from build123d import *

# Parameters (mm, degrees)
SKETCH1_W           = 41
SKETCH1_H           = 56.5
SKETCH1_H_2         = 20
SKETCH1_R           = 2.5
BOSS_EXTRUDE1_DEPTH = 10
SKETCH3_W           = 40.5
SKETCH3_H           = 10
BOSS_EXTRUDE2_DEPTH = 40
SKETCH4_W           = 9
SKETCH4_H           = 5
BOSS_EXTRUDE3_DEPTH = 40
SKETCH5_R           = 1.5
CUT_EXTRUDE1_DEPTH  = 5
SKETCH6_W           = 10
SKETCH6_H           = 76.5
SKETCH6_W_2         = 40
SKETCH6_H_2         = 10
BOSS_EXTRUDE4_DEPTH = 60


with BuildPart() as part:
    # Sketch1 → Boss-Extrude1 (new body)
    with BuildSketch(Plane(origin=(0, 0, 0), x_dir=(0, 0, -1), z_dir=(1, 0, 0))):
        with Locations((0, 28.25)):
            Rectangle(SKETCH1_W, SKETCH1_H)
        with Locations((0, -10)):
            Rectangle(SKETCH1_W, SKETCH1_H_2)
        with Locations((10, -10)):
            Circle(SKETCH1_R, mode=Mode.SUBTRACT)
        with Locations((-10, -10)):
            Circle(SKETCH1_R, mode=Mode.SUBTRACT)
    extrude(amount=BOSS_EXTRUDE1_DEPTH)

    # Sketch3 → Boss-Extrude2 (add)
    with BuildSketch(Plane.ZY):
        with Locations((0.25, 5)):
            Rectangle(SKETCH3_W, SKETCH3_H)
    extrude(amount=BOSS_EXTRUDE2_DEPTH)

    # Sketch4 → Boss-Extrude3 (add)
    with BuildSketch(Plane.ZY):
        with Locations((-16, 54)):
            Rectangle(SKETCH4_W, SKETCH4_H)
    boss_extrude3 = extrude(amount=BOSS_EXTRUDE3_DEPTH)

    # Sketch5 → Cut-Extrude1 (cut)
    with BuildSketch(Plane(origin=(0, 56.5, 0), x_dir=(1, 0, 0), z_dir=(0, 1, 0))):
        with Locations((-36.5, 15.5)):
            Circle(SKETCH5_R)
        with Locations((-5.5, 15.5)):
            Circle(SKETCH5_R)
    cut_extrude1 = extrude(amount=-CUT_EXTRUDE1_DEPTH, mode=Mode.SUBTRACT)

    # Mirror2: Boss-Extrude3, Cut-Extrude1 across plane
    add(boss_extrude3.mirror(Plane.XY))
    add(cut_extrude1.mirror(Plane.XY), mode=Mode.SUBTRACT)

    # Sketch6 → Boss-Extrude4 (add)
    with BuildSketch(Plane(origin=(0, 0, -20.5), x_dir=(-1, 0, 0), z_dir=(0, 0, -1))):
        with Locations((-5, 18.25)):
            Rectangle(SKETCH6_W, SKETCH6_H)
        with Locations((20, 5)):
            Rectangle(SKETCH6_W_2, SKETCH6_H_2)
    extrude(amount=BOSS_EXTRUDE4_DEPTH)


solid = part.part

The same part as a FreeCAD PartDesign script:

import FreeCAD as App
import Part
import Sketcher

V = App.Vector
Q = App.Units.Quantity

doc = App.newDocument("Part")
body = doc.addObject("PartDesign::Body", "Body")

sketch1 = body.newObject("Sketcher::SketchObject", "Sketch")
sketch1.AttachmentSupport = (doc.getObject("YZ_Plane"), [""])
sketch1.MapMode = "FlatFace"
sketch1.addGeometry([
    Part.LineSegment(V(56.5, 20.5, 0), V(-20, 20.5, 0)),
    Part.LineSegment(V(-20, 20.5, 0), V(-20, -20.5, 0)),
    Part.LineSegment(V(-20, -20.5, 0), V(56.5, -20.5, 0)),
    Part.LineSegment(V(56.5, -20.5, 0), V(56.5, 20.5, 0)),
    Part.Circle(V(-10, 10, 0), V(0, 0, 1), 2.5),
    Part.Circle(V(-10, -10, 0), V(0, 0, 1), 2.5),
], False)
sketch1.addConstraint([
    Sketcher.Constraint("Coincident", 0, 2, 1, 1),
    Sketcher.Constraint("Coincident", 1, 2, 2, 1),
    Sketcher.Constraint("Coincident", 2, 2, 3, 1),
    Sketcher.Constraint("Coincident", 3, 2, 0, 1),
    Sketcher.Constraint("Horizontal", 0),
    Sketcher.Constraint("Vertical", 1),
    Sketcher.Constraint("Horizontal", 2),
    Sketcher.Constraint("Vertical", 3),
    Sketcher.Constraint("Equal", 4, 5),
    Sketcher.Constraint("Symmetric", 4, 3, 5, 3, -1),
    Sketcher.Constraint("Diameter", 4, Q("5 mm")),
    Sketcher.Constraint("DistanceY", 1, 2, 1, 1, Q("41 mm")),
    Sketcher.Constraint("DistanceX", 0, 2, 0, 1, Q("76.5 mm")),
    Sketcher.Constraint("DistanceX", 4, 3, -1, 1, Q("10 mm")),
    Sketcher.Constraint("DistanceY", -1, 1, 4, 3, Q("10 mm")),
    Sketcher.Constraint("DistanceX", 0, 2, -1, 1, Q("20 mm")),
    Sketcher.Constraint("DistanceY", -1, 1, 0, 2, Q("20.5 mm")),
])
pad1 = body.newObject("PartDesign::Pad", "Pad")
pad1.Profile = sketch1
pad1.Length = 10

sketch2 = body.newObject("Sketcher::SketchObject", "Sketch001")
sketch2.AttachmentSupport = (doc.getObject("YZ_Plane"), [""])
sketch2.MapMode = "FlatFace"
sketch2.addGeometry([
    Part.LineSegment(V(10, -20, 0), V(0, -20, 0)),
    Part.LineSegment(V(0, -20, 0), V(0, 20.5, 0)),
    Part.LineSegment(V(0, 20.5, 0), V(10, 20.5, 0)),
    Part.LineSegment(V(10, 20.5, 0), V(10, -20, 0)),
], False)
sketch2.addConstraint([
    Sketcher.Constraint("Coincident", 0, 2, 1, 1),
    Sketcher.Constraint("Coincident", 1, 2, 2, 1),
    Sketcher.Constraint("Coincident", 2, 2, 3, 1),
    Sketcher.Constraint("Coincident", 3, 2, 0, 1),
    Sketcher.Constraint("Horizontal", 0),
    Sketcher.Constraint("Vertical", 1),
    Sketcher.Constraint("Horizontal", 2),
    Sketcher.Constraint("Vertical", 3),
    Sketcher.Constraint("PointOnObject", 0, 2, -2),
    Sketcher.Constraint("DistanceX", 0, 2, 0, 1, Q("10 mm")),
    Sketcher.Constraint("DistanceY", 1, 1, 1, 2, Q("40.5 mm")),
    Sketcher.Constraint("DistanceY", 0, 2, -1, 1, Q("20 mm")),
])
pad2 = body.newObject("PartDesign::Pad", "Pad001")
pad2.Profile = sketch2
pad2.Length = 40
pad2.Reversed = True

sketch3 = body.newObject("Sketcher::SketchObject", "Sketch002")
sketch3.AttachmentSupport = (doc.getObject("YZ_Plane"), [""])
sketch3.MapMode = "FlatFace"
sketch3.addGeometry([
    Part.LineSegment(V(56.5, -20.5, 0), V(51.5, -20.5, 0)),
    Part.LineSegment(V(51.5, -20.5, 0), V(51.5, -11.5, 0)),
    Part.LineSegment(V(51.5, -11.5, 0), V(56.5, -11.5, 0)),
    Part.LineSegment(V(56.5, -11.5, 0), V(56.5, -20.5, 0)),
], False)
sketch3.addConstraint([
    Sketcher.Constraint("Coincident", 0, 2, 1, 1),
    Sketcher.Constraint("Coincident", 1, 2, 2, 1),
    Sketcher.Constraint("Coincident", 2, 2, 3, 1),
    Sketcher.Constraint("Coincident", 3, 2, 0, 1),
    Sketcher.Constraint("Horizontal", 0),
    Sketcher.Constraint("Vertical", 1),
    Sketcher.Constraint("Horizontal", 2),
    Sketcher.Constraint("Vertical", 3),
    Sketcher.Constraint("DistanceX", 0, 2, 0, 1, Q("5 mm")),
    Sketcher.Constraint("DistanceY", 1, 1, 1, 2, Q("9 mm")),
    Sketcher.Constraint("DistanceX", -1, 1, 0, 2, Q("51.5 mm")),
    Sketcher.Constraint("DistanceY", 0, 2, -1, 1, Q("20.5 mm")),
])
pad3 = body.newObject("PartDesign::Pad", "Pad002")
pad3.Profile = sketch3
pad3.Length = 40
pad3.Reversed = True

sketch4 = body.newObject("Sketcher::SketchObject", "Sketch003")
sketch4.AttachmentSupport = (doc.getObject("XZ_Plane"), [""])
sketch4.MapMode = "FlatFace"
sketch4.AttachmentOffset = App.Placement(V(0, 0, -56.5), App.Rotation())
sketch4.addGeometry([
    Part.Circle(V(-36.5, -15.5, 0), V(0, 0, 1), 1.5),
    Part.Circle(V(-5.5, -15.5, 0), V(0, 0, 1), 1.5),
], False)
sketch4.addConstraint([
    Sketcher.Constraint("Equal", 0, 1),
    Sketcher.Constraint("Horizontal", 0, 3, 1, 3),
    Sketcher.Constraint("Diameter", 0, Q("3 mm")),
    Sketcher.Constraint("DistanceX", 0, 3, 1, 3, Q("31 mm")),
    Sketcher.Constraint("DistanceX", 0, 3, -1, 1, Q("36.5 mm")),
    Sketcher.Constraint("DistanceY", 0, 3, -1, 1, Q("15.5 mm")),
])
pocket1 = body.newObject("PartDesign::Pocket", "Pocket")
pocket1.Profile = sketch4
pocket1.Length = 5
pocket1.Reversed = True
doc.recompute()

mirrored = body.newObject("PartDesign::Mirrored", "Mirrored")
mirrored.Originals = [pad3, pocket1]
mirrored.MirrorPlane = (doc.getObject("XY_Plane"), [""])
body.Tip = mirrored

sketch5 = body.newObject("Sketcher::SketchObject", "Sketch004")
sketch5.AttachmentSupport = (doc.getObject("XY_Plane"), [""])
sketch5.MapMode = "FlatFace"
sketch5.AttachmentOffset = App.Placement(V(0, 0, -20.5), App.Rotation())
sketch5.addGeometry([
    Part.LineSegment(V(10, 56.5, 0), V(10, -20, 0)),
    Part.LineSegment(V(10, -20, 0), V(0, -20, 0)),
    Part.LineSegment(V(0, -20, 0), V(0, 0, 0)),
    Part.LineSegment(V(0, 0, 0), V(-40, 0, 0)),
    Part.LineSegment(V(-40, 0, 0), V(-40, 10, 0)),
    Part.LineSegment(V(-40, 10, 0), V(0, 10, 0)),
    Part.LineSegment(V(0, 10, 0), V(0, 56.5, 0)),
    Part.LineSegment(V(0, 56.5, 0), V(10, 56.5, 0)),
], False)
sketch5.addConstraint([
    Sketcher.Constraint("Coincident", 0, 2, 1, 1),
    Sketcher.Constraint("Coincident", 1, 2, 2, 1),
    Sketcher.Constraint("Coincident", 2, 2, 3, 1),
    Sketcher.Constraint("Coincident", 3, 2, 4, 1),
    Sketcher.Constraint("Coincident", 4, 2, 5, 1),
    Sketcher.Constraint("Coincident", 5, 2, 6, 1),
    Sketcher.Constraint("Coincident", 6, 2, 7, 1),
    Sketcher.Constraint("Coincident", 7, 2, 0, 1),
    Sketcher.Constraint("Vertical", 0),
    Sketcher.Constraint("Horizontal", 1),
    Sketcher.Constraint("Vertical", 2),
    Sketcher.Constraint("Horizontal", 3),
    Sketcher.Constraint("Vertical", 4),
    Sketcher.Constraint("Horizontal", 5),
    Sketcher.Constraint("Vertical", 6),
    Sketcher.Constraint("Horizontal", 7),
    Sketcher.Constraint("Coincident", 2, 2, -1, 1),
    Sketcher.Constraint("PointOnObject", 5, 2, -2),
    Sketcher.Constraint("Equal", 7, 4),
    Sketcher.Constraint("DistanceX", 1, 2, 1, 1, Q("10 mm")),
    Sketcher.Constraint("DistanceX", 3, 2, 3, 1, Q("40 mm")),
    Sketcher.Constraint("DistanceY", 2, 1, 2, 2, Q("20 mm")),
    Sketcher.Constraint("DistanceY", 0, 2, 0, 1, Q("76.5 mm")),
])
pad4 = body.newObject("PartDesign::Pad", "Pad003")
pad4.Profile = sketch5
pad4.Length = 60
pad4.Reversed = True

doc.recompute()
